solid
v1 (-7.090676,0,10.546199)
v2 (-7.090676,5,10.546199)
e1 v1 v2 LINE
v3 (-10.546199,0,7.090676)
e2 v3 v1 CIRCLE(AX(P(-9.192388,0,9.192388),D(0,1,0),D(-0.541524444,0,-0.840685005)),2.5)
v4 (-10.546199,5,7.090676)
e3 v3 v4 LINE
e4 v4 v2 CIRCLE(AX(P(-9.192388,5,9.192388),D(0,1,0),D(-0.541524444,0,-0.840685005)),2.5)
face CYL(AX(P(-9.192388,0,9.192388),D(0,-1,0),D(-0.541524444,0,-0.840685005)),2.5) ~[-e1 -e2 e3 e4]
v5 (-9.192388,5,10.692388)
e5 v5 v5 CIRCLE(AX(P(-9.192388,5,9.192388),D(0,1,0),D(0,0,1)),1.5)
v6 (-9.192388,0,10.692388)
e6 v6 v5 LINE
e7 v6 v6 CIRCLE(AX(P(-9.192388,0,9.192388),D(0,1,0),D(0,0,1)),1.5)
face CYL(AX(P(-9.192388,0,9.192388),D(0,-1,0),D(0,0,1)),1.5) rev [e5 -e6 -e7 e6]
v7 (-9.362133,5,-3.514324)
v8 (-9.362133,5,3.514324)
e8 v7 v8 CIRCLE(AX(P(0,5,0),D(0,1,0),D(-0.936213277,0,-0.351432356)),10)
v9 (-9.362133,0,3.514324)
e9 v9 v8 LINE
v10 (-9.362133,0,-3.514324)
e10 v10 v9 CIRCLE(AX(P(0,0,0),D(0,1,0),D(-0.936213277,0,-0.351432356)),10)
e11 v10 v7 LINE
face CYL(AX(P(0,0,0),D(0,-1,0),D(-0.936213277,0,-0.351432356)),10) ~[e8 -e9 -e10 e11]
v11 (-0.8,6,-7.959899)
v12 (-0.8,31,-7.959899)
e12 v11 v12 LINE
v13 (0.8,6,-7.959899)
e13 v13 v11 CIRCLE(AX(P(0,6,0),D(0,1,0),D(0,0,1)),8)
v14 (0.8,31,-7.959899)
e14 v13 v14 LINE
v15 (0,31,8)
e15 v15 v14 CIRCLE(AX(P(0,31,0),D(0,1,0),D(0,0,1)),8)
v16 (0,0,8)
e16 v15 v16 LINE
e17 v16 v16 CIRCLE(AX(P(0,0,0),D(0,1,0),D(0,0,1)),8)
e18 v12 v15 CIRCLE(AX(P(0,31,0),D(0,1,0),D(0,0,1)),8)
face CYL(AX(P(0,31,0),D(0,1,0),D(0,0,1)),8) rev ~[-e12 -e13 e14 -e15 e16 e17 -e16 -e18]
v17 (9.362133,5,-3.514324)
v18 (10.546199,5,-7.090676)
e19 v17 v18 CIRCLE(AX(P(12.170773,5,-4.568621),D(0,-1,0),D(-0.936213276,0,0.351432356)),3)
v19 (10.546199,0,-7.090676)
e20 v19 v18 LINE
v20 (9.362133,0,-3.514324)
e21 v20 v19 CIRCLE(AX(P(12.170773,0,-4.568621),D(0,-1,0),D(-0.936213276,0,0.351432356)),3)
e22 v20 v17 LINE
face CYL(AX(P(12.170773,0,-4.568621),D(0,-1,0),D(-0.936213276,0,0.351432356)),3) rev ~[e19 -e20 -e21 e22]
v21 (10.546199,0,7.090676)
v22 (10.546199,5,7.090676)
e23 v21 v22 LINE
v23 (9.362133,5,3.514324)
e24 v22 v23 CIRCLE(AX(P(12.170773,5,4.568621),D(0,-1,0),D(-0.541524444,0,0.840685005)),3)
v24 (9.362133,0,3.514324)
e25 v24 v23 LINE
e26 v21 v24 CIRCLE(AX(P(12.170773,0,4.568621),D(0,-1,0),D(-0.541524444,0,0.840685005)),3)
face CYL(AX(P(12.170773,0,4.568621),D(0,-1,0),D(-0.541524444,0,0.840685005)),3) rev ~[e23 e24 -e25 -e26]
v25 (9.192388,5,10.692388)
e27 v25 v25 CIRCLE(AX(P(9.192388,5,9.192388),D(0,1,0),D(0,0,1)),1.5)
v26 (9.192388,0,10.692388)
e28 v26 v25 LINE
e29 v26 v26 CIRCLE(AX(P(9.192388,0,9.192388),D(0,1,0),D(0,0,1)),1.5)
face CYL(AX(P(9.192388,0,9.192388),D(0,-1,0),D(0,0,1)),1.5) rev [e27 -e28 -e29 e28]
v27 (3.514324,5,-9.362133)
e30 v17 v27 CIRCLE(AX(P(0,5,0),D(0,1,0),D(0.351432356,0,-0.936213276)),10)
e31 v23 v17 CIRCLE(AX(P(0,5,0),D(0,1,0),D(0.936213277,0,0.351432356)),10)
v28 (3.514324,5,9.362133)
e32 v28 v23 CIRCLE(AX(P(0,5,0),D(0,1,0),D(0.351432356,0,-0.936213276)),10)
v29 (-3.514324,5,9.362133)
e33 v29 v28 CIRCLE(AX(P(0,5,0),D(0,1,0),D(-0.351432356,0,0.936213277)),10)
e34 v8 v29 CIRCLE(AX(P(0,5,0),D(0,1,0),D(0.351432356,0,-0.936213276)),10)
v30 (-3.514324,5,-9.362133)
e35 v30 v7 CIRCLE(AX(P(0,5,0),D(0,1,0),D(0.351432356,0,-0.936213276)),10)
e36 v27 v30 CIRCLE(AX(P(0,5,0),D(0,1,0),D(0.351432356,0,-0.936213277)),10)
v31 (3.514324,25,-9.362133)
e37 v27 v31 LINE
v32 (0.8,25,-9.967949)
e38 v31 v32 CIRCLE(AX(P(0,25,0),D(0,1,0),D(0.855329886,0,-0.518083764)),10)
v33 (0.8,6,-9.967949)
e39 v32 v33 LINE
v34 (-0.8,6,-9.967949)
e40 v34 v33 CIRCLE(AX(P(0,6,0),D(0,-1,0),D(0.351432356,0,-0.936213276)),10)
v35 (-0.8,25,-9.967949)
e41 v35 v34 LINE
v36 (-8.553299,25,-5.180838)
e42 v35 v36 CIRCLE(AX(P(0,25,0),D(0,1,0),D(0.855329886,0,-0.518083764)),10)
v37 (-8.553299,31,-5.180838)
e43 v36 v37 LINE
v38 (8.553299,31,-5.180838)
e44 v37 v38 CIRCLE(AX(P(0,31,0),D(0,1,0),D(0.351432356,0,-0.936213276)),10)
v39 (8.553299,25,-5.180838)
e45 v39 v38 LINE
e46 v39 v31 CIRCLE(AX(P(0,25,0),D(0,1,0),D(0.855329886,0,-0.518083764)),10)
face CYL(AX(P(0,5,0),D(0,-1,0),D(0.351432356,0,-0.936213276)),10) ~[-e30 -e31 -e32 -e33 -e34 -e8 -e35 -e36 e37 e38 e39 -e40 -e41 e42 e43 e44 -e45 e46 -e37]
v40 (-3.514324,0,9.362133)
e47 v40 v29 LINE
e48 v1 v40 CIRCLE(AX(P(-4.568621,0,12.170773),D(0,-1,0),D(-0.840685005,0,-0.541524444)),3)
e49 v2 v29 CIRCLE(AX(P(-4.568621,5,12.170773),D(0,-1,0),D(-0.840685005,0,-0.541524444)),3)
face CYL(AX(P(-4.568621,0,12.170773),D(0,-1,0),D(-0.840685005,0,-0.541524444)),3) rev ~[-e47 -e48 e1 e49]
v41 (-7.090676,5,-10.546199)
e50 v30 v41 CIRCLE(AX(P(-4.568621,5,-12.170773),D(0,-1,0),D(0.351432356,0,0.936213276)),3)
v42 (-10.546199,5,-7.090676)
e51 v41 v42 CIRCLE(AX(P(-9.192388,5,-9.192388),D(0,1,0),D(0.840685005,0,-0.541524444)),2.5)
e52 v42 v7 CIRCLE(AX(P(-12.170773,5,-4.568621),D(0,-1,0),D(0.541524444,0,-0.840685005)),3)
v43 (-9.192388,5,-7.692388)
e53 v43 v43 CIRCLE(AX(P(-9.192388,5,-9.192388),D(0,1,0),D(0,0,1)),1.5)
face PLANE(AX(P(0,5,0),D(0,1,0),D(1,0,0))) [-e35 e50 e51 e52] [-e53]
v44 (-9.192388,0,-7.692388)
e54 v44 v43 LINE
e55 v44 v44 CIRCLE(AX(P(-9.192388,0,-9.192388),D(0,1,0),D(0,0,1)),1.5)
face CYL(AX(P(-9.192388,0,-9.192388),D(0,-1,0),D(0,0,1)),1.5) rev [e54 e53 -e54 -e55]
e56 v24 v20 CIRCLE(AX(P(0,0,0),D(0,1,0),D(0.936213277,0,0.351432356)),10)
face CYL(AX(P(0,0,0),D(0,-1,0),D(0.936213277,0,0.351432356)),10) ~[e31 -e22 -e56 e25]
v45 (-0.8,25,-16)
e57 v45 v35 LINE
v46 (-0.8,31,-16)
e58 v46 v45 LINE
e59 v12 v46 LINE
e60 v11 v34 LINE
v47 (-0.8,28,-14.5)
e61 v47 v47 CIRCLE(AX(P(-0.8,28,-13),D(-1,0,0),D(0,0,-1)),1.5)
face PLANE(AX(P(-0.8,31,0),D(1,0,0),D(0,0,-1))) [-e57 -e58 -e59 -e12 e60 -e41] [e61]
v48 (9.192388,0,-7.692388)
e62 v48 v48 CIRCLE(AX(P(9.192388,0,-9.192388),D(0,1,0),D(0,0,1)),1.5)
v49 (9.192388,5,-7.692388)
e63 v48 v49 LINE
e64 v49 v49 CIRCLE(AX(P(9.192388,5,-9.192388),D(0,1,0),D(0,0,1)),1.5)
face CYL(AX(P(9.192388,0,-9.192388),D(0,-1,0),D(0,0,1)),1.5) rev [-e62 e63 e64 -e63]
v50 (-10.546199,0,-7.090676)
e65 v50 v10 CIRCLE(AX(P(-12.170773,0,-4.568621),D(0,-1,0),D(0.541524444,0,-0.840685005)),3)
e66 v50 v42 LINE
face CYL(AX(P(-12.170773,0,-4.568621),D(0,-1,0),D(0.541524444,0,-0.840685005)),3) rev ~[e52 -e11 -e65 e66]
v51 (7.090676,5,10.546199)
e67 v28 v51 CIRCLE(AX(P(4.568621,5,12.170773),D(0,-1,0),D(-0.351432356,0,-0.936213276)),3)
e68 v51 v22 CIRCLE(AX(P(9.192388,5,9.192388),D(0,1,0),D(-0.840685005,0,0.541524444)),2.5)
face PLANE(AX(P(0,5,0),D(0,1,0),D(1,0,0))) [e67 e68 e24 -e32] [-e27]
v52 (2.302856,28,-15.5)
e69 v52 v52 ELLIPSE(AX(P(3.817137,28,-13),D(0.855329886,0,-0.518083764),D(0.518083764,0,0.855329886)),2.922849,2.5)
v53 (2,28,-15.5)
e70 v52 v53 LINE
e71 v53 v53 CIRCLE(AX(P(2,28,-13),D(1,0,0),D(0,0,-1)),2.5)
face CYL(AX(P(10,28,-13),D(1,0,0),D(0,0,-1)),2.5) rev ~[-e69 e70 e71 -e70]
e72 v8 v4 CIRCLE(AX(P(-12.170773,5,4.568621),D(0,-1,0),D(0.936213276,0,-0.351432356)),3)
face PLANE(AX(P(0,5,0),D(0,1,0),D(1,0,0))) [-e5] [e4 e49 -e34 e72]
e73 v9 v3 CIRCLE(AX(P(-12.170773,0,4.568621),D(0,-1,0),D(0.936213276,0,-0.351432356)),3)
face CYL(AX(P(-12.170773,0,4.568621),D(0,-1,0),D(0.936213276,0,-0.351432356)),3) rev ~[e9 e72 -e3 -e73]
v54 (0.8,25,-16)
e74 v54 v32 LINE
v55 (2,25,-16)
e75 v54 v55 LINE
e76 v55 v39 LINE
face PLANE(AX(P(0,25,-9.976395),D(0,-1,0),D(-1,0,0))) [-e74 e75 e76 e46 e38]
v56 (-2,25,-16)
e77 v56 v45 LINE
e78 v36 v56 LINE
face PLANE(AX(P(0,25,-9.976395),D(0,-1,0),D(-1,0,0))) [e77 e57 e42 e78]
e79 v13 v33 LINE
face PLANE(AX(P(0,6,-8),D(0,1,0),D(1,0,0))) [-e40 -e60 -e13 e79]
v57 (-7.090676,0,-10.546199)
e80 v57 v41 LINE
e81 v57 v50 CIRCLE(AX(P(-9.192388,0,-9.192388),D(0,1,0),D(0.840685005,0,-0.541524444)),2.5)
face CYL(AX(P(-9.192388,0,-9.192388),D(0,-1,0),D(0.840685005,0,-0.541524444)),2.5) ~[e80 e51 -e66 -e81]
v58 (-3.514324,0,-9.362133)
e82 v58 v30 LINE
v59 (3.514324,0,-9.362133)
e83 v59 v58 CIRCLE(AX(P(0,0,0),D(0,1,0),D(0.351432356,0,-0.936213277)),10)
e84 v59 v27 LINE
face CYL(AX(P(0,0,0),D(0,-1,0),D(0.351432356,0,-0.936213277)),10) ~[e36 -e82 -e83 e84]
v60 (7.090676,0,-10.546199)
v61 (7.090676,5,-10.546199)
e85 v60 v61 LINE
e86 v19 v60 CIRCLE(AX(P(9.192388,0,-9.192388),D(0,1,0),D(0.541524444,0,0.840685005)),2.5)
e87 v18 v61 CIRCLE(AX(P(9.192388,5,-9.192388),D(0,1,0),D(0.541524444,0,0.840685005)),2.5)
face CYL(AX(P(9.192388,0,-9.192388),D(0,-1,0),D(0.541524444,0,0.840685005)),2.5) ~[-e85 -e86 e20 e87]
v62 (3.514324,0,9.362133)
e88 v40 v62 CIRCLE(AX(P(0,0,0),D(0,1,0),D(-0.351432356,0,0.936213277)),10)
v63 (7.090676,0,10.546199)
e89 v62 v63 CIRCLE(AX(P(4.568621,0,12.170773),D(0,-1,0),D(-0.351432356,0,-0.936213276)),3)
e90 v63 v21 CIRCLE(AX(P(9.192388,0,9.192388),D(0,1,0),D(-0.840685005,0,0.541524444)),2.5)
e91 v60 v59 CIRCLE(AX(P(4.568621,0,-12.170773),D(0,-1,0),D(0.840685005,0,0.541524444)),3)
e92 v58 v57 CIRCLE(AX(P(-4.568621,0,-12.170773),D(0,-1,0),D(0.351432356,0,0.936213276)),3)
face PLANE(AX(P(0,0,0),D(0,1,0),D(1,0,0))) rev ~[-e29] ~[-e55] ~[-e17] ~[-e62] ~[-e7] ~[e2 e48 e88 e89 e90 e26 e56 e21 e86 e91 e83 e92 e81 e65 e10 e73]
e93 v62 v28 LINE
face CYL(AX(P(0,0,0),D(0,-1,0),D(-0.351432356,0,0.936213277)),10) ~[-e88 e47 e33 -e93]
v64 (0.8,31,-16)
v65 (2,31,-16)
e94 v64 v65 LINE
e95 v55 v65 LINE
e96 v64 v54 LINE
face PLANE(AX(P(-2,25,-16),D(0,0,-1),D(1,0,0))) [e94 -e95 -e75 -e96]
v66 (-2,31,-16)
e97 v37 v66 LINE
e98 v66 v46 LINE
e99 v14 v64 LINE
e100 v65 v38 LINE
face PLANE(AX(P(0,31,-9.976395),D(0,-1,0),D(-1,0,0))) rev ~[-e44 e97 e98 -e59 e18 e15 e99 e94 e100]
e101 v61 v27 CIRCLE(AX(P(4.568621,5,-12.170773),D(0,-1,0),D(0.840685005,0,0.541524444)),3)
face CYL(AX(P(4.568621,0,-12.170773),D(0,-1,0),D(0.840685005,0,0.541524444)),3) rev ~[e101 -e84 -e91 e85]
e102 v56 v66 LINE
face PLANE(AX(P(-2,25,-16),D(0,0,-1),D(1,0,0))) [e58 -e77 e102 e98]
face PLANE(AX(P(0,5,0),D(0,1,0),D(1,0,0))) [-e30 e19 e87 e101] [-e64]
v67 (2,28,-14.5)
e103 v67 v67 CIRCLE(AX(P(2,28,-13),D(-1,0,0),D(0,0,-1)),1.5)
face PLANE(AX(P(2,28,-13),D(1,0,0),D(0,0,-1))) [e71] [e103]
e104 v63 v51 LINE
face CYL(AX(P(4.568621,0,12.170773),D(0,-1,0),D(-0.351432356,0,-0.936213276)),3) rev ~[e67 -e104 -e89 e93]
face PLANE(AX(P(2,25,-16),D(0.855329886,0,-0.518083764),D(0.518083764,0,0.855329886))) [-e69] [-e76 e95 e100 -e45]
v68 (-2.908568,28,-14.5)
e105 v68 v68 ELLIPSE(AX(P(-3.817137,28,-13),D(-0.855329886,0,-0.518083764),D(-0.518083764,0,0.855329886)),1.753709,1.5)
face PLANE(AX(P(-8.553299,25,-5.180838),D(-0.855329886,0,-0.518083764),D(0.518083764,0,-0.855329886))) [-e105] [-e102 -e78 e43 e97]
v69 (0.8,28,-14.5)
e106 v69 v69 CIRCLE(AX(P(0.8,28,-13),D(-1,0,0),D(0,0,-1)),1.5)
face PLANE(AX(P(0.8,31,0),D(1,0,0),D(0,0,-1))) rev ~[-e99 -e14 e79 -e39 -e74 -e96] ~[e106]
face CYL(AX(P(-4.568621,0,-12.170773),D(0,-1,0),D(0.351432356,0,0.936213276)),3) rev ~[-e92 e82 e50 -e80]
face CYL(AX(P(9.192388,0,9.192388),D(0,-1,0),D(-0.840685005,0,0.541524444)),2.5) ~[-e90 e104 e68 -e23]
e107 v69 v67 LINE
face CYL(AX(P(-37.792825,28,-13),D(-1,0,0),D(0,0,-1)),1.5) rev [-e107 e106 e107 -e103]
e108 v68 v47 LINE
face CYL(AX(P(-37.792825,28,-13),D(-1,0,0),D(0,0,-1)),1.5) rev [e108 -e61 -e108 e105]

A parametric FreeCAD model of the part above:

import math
import FreeCAD as App
import Part
import Sketcher

V = App.Vector


def add_polygon(sketch, points):
    """Adds a closed chain of lines whose ends are joined by coincident constraints."""
    first, n = sketch.GeometryCount, len(points)
    for a, b in zip(points, points[1:] + points[:1]):
        sketch.addGeometry(Part.LineSegment(App.Vector(*a, 0), App.Vector(*b, 0)), False)
    for i in range(n):
        sketch.addConstraint(Sketcher.Constraint("Coincident", first + i, 2, first + (i + 1) % n, 1))

doc = App.newDocument("Part")
body = doc.addObject("PartDesign::Body", "Body")

sketch1 = doc.addObject("Sketcher::SketchObject", "Sketch")
body.addObject(sketch1)
sketch1.AttachmentSupport = (doc.XZ_Plane, [""])
sketch1.MapMode = "FlatFace"
sketch1.addGeometry([
    Part.ArcOfCircle(Part.Circle(V(4.6, -12.2, 0), V(0, 0, 1), 3), math.radians(33), math.radians(111)),
    Part.ArcOfCircle(Part.Circle(V(0, 0, 0), V(0, 0, 1), 10), math.radians(-111), math.radians(-69)),
    Part.ArcOfCircle(Part.Circle(V(-4.6, -12.2, 0), V(0, 0, 1), 3), math.radians(69), math.radians(147)),
    Part.ArcOfCircle(Part.Circle(V(-9.2, -9.2, 0), V(0, 0, 1), 2.5), math.radians(123), math.radians(327)),
    Part.ArcOfCircle(Part.Circle(V(-12.2, -4.6, 0), V(0, 0, 1), 3), math.radians(-57), math.radians(21)),
    Part.ArcOfCircle(Part.Circle(V(0, 0, 0), V(0, 0, 1), 10), math.radians(159), math.radians(201)),
    Part.ArcOfCircle(Part.Circle(V(-12.2, 4.6, 0), V(0, 0, 1), 3), math.radians(-21), math.radians(57)),
    Part.ArcOfCircle(Part.Circle(V(-9.2, 9.2, 0), V(0, 0, 1), 2.5), math.radians(33), math.radians(237)),
    Part.ArcOfCircle(Part.Circle(V(-4.6, 12.2, 0), V(0, 0, 1), 3), math.radians(-147), math.radians(-69)),
    Part.ArcOfCircle(Part.Circle(V(0, 0, 0), V(0, 0, 1), 10), math.radians(69), math.radians(111)),
    Part.ArcOfCircle(Part.Circle(V(4.6, 12.2, 0), V(0, 0, 1), 3), math.radians(-111), math.radians(-33)),
    Part.ArcOfCircle(Part.Circle(V(9.2, 9.2, 0), V(0, 0, 1), 2.5), math.radians(-57), math.radians(147)),
    Part.ArcOfCircle(Part.Circle(V(12.2, 4.6, 0), V(0, 0, 1), 3), math.radians(123), math.radians(201)),
    Part.ArcOfCircle(Part.Circle(V(0, 0, 0), V(0, 0, 1), 10), math.radians(-21), math.radians(21)),
    Part.ArcOfCircle(Part.Circle(V(12.2, -4.6, 0), V(0, 0, 1), 3), math.radians(159), math.radians(237)),
    Part.ArcOfCircle(Part.Circle(V(9.2, -9.2, 0), V(0, 0, 1), 2.5), math.radians(-147), math.radians(57)),
    Part.Circle(V(-9.2, 9.2, 0), V(0, 0, 1), 1.5),
    Part.Circle(V(9.2, 9.2, 0), V(0, 0, 1), 1.5),
    Part.Circle(V(-9.2, -9.2, 0), V(0, 0, 1), 1.5),
    Part.Circle(V(9.2, -9.2, 0), V(0, 0, 1), 1.5),
], False)
sketch1.addConstraint([
    Sketcher.Constraint("Tangent", 0, 2, 1, 2),
    Sketcher.Constraint("Tangent", 1, 1, 2, 1),
    Sketcher.Constraint("Tangent", 2, 2, 3, 2),
    Sketcher.Constraint("Tangent", 3, 1, 4, 1),
    Sketcher.Constraint("Tangent", 4, 2, 5, 2),
    Sketcher.Constraint("Tangent", 5, 1, 6, 1),
    Sketcher.Constraint("Tangent", 6, 2, 7, 2),
    Sketcher.Constraint("Tangent", 7, 1, 8, 1),
    Sketcher.Constraint("Tangent", 8, 2, 9, 2),
    Sketcher.Constraint("Tangent", 9, 1, 10, 1),
    Sketcher.Constraint("Tangent", 10, 2, 11, 2),
    Sketcher.Constraint("Tangent", 11, 1, 12, 1),
    Sketcher.Constraint("Tangent", 12, 2, 13, 2),
    Sketcher.Constraint("Tangent", 13, 1, 14, 1),
    Sketcher.Constraint("Tangent", 14, 2, 15, 2),
    Sketcher.Constraint("Tangent", 15, 1, 0, 1),
    Sketcher.Constraint("Coincident", 1, 3, -1, 1),
    Sketcher.Constraint("Coincident", 5, 3, -1, 1),
    Sketcher.Constraint("Coincident", 9, 3, -1, 1),
    Sketcher.Constraint("Coincident", 13, 3, -1, 1),
    Sketcher.Constraint("Coincident", 16, 3, 7, 3),
    Sketcher.Constraint("Coincident", 17, 3, 11, 3),
    Sketcher.Constraint("Coincident", 18, 3, 3, 3),
    Sketcher.Constraint("Coincident", 19, 3, 15, 3),
    Sketcher.Constraint("Equal", 0, 2),
    Sketcher.Constraint("Equal", 2, 4),
    Sketcher.Constraint("Equal", 1, 5),
    Sketcher.Constraint("Equal", 4, 6),
    Sketcher.Constraint("Equal", 3, 7),
    Sketcher.Constraint("Equal", 6, 8),
    Sketcher.Constraint("Equal", 5, 9),
    Sketcher.Constraint("Equal", 8, 10),
    Sketcher.Constraint("Equal", 7, 11),
    Sketcher.Constraint("Equal", 10, 12),
    Sketcher.Constraint("Equal", 9, 13),
    Sketcher.Constraint("Equal", 12, 14),
    Sketcher.Constraint("Equal", 11, 15),
    Sketcher.Constraint("Equal", 16, 17),
    Sketcher.Constraint("Equal", 17, 18),
    Sketcher.Constraint("Equal", 18, 19),
    Sketcher.Constraint("Symmetric", 3, 3, 11, 3, -1, 1),
    Sketcher.Constraint("Symmetric", 7, 3, 15, 3, -1, 1),
    Sketcher.Constraint("Symmetric", 7, 3, 11, 3, -2),
    Sketcher.Constraint("Diameter", 16, 3.0),
    Sketcher.Constraint("Radius", 0, 3.0),
    Sketcher.Constraint("Radius", 1, 10.0),
    Sketcher.Constraint("Radius", 3, 2.5),
    Sketcher.Constraint("DistanceY", 2, 2, -1, 1, 10.546199),
    Sketcher.Constraint("DistanceX", 3, 1, -1, 1, 10.546199),
])
pad1 = doc.addObject("PartDesign::Pad", "Pad")
body.addObject(pad1)
pad1.Profile = sketch1
pad1.Length = 5
pad1.Reversed = True

sketch2 = doc.addObject("Sketcher::SketchObject", "Sketch001")
body.addObject(sketch2)
sketch2.AttachmentSupport = (doc.XZ_Plane, [""])
sketch2.MapMode = "FlatFace"
sketch2.AttachmentOffset = App.Placement(V(0, 0, -5), App.Rotation())
sketch2.addGeometry(Part.Circle(V(0, 0, 0), V(0, 0, 1), 10), False)
sketch2.addConstraint([
    Sketcher.Constraint("Coincident", 0, 3, -1, 1),
    Sketcher.Constraint("Diameter", 0, 20.0),
])
pad2 = doc.addObject("PartDesign::Pad", "Pad001")
body.addObject(pad2)
pad2.Profile = sketch2
pad2.Length = 26
pad2.Reversed = True

sketch3 = doc.addObject("Sketcher::SketchObject", "Sketch002")
body.addObject(sketch3)
sketch3.AttachmentSupport = (doc.XZ_Plane, [""])
sketch3.MapMode = "FlatFace"
sketch3.AttachmentOffset = App.Placement(V(0, 0, -31), App.Rotation())
sketch3.addGeometry(Part.Circle(V(0, 0, 0), V(0, 0, 1), 8), False)
sketch3.addConstraint([
    Sketcher.Constraint("Coincident", 0, 3, -1, 1),
    Sketcher.Constraint("Diameter", 0, 16.0),
])
pocket1 = doc.addObject("PartDesign::Pocket", "Pocket")
body.addObject(pocket1)
pocket1.Profile = sketch3
pocket1.Type = "ThroughAll"
pocket1.Reversed = True

sketch4 = doc.addObject("Sketcher::SketchObject", "Sketch003")
body.addObject(sketch4)
sketch4.AttachmentSupport = (doc.XZ_Plane, [""])
sketch4.MapMode = "FlatFace"
sketch4.AttachmentOffset = App.Placement(V(0, 0, -25), App.Rotation())
sketch4.addGeometry([
    Part.LineSegment(V(-2, -16, 0), V(-8.6, -5.2, 0)),
    Part.ArcOfCircle(Part.Circle(V(0, 0, 0), V(0, 0, 1), 10), math.radians(-149), math.radians(-31)),
    Part.LineSegment(V(8.6, -5.2, 0), V(2, -16, 0)),
    Part.LineSegment(V(2, -16, 0), V(-2, -16, 0)),
], False)
sketch4.addConstraint([
    Sketcher.Constraint("Tangent", 0, 2, 1, 1),
    Sketcher.Constraint("Tangent", 1, 2, 2, 1),
    Sketcher.Constraint("Coincident", 2, 2, 3, 1),
    Sketcher.Constraint("Coincident", 3, 2, 0, 1),
    Sketcher.Constraint("Horizontal", 3),
    Sketcher.Constraint("Coincident", 1, 3, -1, 1),
    Sketcher.Constraint("Horizontal", 0, 2, 1, 2),
    Sketcher.Constraint("Radius", 1, 10.0),
    Sketcher.Constraint("DistanceX", 3, 2, 3, 1, 4.0),
    Sketcher.Constraint("DistanceY", 2, 2, -1, 1, 16.0),
])
pad3 = doc.addObject("PartDesign::Pad", "Pad002")
body.addObject(pad3)
pad3.Profile = sketch4
pad3.Length = 6
pad3.Reversed = True

sketch5 = doc.addObject("Sketcher::SketchObject", "Sketch004")
body.addObject(sketch5)
sketch5.AttachmentSupport = (doc.XZ_Plane, [""])
sketch5.MapMode = "FlatFace"
sketch5.AttachmentOffset = App.Placement(V(0, 0, -31), App.Rotation())
add_polygon(sketch5, [(-0.8, -16), (-0.8, 0), (0.8, 0), (0.8, -16)])
sketch5.addConstraint([
    Sketcher.Constraint("Vertical", 0),
    Sketcher.Constraint("Horizontal", 1),
    Sketcher.Constraint("Vertical", 2),
    Sketcher.Constraint("Horizontal", 3),
    Sketcher.Constraint("Symmetric", 0, 2, 1, 2, -1, 1),
    Sketcher.Constraint("DistanceY", 0, 1, 0, 2, 16.0),
    Sketcher.Constraint("DistanceX", 1, 1, 1, 2, 1.6),
])
pocket2 = doc.addObject("PartDesign::Pocket", "Pocket001")
body.addObject(pocket2)
pocket2.Profile = sketch5
pocket2.Length = 25
pocket2.Reversed = True

sketch6 = doc.addObject("Sketcher::SketchObject", "Sketch005")
body.addObject(sketch6)
sketch6.AttachmentSupport = (doc.YZ_Plane, [""])
sketch6.MapMode = "FlatFace"
sketch6.addGeometry(Part.Circle(V(28, -13, 0), V(0, 0, 1), 1.5), False)
sketch6.addConstraint([
    Sketcher.Constraint("Diameter", 0, 3.0),
    Sketcher.Constraint("DistanceX", -1, 1, 0, 3, 28.0),
    Sketcher.Constraint("DistanceY", 0, 3, -1, 1, 13.0),
])
pocket3 = doc.addObject("PartDesign::Pocket", "Pocket002")
body.addObject(pocket3)
pocket3.Profile = sketch6
pocket3.Type = "ThroughAll"
pocket3.Midplane = True

sketch7 = doc.addObject("Sketcher::SketchObject", "Sketch006")
body.addObject(sketch7)
sketch7.AttachmentSupport = (doc.YZ_Plane, [""])
sketch7.MapMode = "FlatFace"
sketch7.AttachmentOffset = App.Placement(V(0, 0, 10), App.Rotation())
sketch7.addGeometry(Part.Circle(V(28, -13, 0), V(0, 0, 1), 2.5), False)
sketch7.addConstraint([
    Sketcher.Constraint("Diameter", 0, 5.0),
    Sketcher.Constraint("DistanceX", -1, 1, 0, 3, 28.0),
    Sketcher.Constraint("DistanceY", 0, 3, -1, 1, 13.0),
])
pocket4 = doc.addObject("PartDesign::Pocket", "Pocket003")
body.addObject(pocket4)
pocket4.Profile = sketch7
pocket4.Length = 8

doc.recompute()
